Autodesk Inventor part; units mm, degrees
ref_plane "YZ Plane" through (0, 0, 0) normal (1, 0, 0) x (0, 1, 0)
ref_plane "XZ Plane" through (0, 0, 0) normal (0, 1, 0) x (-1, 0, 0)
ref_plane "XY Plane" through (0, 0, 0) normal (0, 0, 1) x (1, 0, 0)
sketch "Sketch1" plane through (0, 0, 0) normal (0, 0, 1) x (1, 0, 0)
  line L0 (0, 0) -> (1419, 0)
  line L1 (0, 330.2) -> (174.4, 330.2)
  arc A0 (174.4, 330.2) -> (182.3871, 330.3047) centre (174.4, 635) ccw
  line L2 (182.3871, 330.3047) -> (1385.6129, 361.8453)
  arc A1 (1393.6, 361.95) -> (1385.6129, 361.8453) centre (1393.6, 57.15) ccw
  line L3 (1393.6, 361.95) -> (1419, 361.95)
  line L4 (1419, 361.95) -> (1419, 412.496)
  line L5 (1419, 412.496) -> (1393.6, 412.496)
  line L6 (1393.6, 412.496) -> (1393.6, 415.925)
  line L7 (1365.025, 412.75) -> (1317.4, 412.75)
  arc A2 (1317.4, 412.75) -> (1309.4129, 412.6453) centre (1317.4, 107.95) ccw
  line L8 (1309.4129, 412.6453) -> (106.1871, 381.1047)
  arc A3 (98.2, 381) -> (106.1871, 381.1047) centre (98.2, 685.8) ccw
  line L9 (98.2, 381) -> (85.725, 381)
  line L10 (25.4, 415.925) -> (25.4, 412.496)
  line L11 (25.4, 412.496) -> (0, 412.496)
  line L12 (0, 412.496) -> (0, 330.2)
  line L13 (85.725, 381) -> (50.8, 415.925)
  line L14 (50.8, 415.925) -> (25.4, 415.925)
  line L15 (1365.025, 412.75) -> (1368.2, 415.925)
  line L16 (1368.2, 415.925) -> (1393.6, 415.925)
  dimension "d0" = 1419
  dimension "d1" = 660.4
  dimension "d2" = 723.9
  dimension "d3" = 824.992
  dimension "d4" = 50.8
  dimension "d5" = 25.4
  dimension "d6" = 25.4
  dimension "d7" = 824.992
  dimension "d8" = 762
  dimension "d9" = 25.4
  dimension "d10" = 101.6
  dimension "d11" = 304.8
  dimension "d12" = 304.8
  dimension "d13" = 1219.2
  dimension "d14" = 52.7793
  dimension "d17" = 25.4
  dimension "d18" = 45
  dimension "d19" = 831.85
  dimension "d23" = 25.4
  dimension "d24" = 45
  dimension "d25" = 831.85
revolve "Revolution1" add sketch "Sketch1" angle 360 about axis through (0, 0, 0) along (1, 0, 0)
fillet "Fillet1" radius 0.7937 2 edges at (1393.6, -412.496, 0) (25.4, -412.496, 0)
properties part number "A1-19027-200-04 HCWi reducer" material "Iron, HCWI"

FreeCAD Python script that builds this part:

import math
import FreeCAD as App
import Part
import Sketcher

V = App.Vector
Q = App.Units.Quantity


def edges_at(feature, points):
    """Names of the edges that pass closest to the given points."""
    edges = feature.Shape.Edges
    near = lambda p: min(range(len(edges)), key=lambda i: edges[i].distToShape(Part.Vertex(*p))[0])
    return sorted({f"Edge{near(p) + 1}" for p in points})

doc = App.newDocument("Part")
params = doc.addObject("Spreadsheet::Sheet", "Params")
for row, (alias, value) in enumerate([
    ("sketch1_width", "1 in"),
    ("sketch1_width2", "1 in"),
    ("sketch1_width3", "1 in"),
    ("sketch1_width4", "1 in"),
    ("sketch1_width5", "1 in"),
    ("revolution_angle", "360 deg"),
    ("fillet_radius", "0.031248 in"),
], start=1):
    params.set(f"A{row}", alias)
    params.set(f"B{row}", "=" + value)
    params.setAlias(f"B{row}", alias)

body = doc.addObject("PartDesign::Body", "Body")

# Sketch on XY plane
sketch1 = doc.addObject("Sketcher::SketchObject", "Sketch")
body.addObject(sketch1)
sketch1.AttachmentSupport = (doc.XY_Plane, [""])
sketch1.MapMode = "FlatFace"
sketch1.addGeometry([
    Part.LineSegment(V(0, 412.496, 0), V(0, 330.2, 0)),  # 0
    Part.LineSegment(V(0, 330.2, 0), V(174.4, 330.2, 0)),  # 1
    Part.ArcOfCircle(Part.Circle(V(174.401276, 634.805309, 0), V(0, 0, 1), 304.605309), math.radians(-90.00024), math.radians(-88.497707)),  # 2
    Part.LineSegment(V(182.3871, 330.3047, 0), V(1385.6129, 361.8453, 0)),  # 3
    Part.ArcOfCircle(Part.Circle(V(1393.598724, 57.344691, 0), V(0, 0, 1), 304.605309), math.radians(89.99976), math.radians(91.502293)),  # 4
    Part.LineSegment(V(1393.6, 361.95, 0), V(1419, 361.95, 0)),  # 5
    Part.LineSegment(V(1419, 361.95, 0), V(1419, 412.496, 0)),  # 6
    Part.LineSegment(V(1419, 412.496, 0), V(1393.6, 412.496, 0)),  # 7
    Part.LineSegment(V(1393.6, 412.496, 0), V(1393.6, 415.925, 0)),  # 8
    Part.LineSegment(V(1393.6, 415.925, 0), V(1368.2, 415.925, 0)),  # 9
    Part.LineSegment(V(1368.2, 415.925, 0), V(1365.025, 412.75, 0)),  # 10
    Part.LineSegment(V(1365.025, 412.75, 0), V(1317.4, 412.75, 0)),  # 11
    Part.ArcOfCircle(Part.Circle(V(1317.398724, 108.144691, 0), V(0, 0, 1), 304.605309), math.radians(89.99976), math.radians(91.502293)),  # 12
    Part.LineSegment(V(1309.4129, 412.6453, 0), V(106.1871, 381.1047, 0)),  # 13
    Part.ArcOfCircle(Part.Circle(V(98.201276, 685.605309, 0), V(0, 0, 1), 304.605309), math.radians(-90.00024), math.radians(-88.497707)),  # 14
    Part.LineSegment(V(98.2, 381, 0), V(85.725, 381, 0)),  # 15
    Part.LineSegment(V(85.725, 381, 0), V(50.8, 415.925, 0)),  # 16
    Part.LineSegment(V(50.8, 415.925, 0), V(25.4, 415.925, 0)),  # 17
    Part.LineSegment(V(25.4, 415.925, 0), V(25.4, 412.496, 0)),  # 18
    Part.LineSegment(V(25.4, 412.496, 0), V(0, 412.496, 0)),  # 19
], False)
sketch1.addConstraint([
    Sketcher.Constraint("Coincident", 0, 2, 1, 1),
    Sketcher.Constraint("Coincident", 1, 2, 2, 1),
    Sketcher.Constraint("Coincident", 2, 2, 3, 1),
    Sketcher.Constraint("Coincident", 3, 2, 4, 2),
    Sketcher.Constraint("Coincident", 4, 1, 5, 1),
    Sketcher.Constraint("Coincident", 5, 2, 6, 1),
    Sketcher.Constraint("Coincident", 6, 2, 7, 1),
    Sketcher.Constraint("Coincident", 7, 2, 8, 1),
    Sketcher.Constraint("Coincident", 8, 2, 9, 1),
    Sketcher.Constraint("Coincident", 9, 2, 10, 1),
    Sketcher.Constraint("Coincident", 10, 2, 11, 1),
    Sketcher.Constraint("Coincident", 11, 2, 12, 1),
    Sketcher.Constraint("Coincident", 12, 2, 13, 1),
    Sketcher.Constraint("Coincident", 13, 2, 14, 2),
    Sketcher.Constraint("Coincident", 14, 1, 15, 1),
    Sketcher.Constraint("Coincident", 15, 2, 16, 1),
    Sketcher.Constraint("Coincident", 16, 2, 17, 1),
    Sketcher.Constraint("Coincident", 17, 2, 18, 1),
    Sketcher.Constraint("Coincident", 18, 2, 19, 1),
    Sketcher.Constraint("Coincident", 19, 2, 0, 1),
    Sketcher.Constraint("Vertical", 0),
    Sketcher.Constraint("Horizontal", 1),
    Sketcher.Constraint("Horizontal", 5),
    Sketcher.Constraint("Vertical", 6),
    Sketcher.Constraint("Horizontal", 7),
    Sketcher.Constraint("Vertical", 8),
    Sketcher.Constraint("Horizontal", 9),
    Sketcher.Constraint("Horizontal", 11),
    Sketcher.Constraint("Horizontal", 15),
    Sketcher.Constraint("Horizontal", 17),
    Sketcher.Constraint("Vertical", 18),
    Sketcher.Constraint("Horizontal", 19),
    Sketcher.Constraint("PointOnObject", 0, 2, -2),
    Sketcher.Constraint("DistanceX", 5, 1, 5, 2, Q("1 in")),
    Sketcher.Constraint("DistanceX", 7, 2, 7, 1, Q("1 in")),
    Sketcher.Constraint("DistanceX", 9, 2, 9, 1, Q("1 in")),
    Sketcher.Constraint("DistanceX", 17, 2, 17, 1, Q("1 in")),
    Sketcher.Constraint("DistanceX", 19, 2, 19, 1, Q("1 in")),
    Sketcher.Constraint("DistanceY", 4, 3, 12, 3, Q("2 in")),
    Sketcher.Constraint("DistanceY", 2, 3, 14, 3, Q("2 in")),
    Sketcher.Constraint("DistanceX", 1, 2, 4, 1, Q("48 in")),
    Sketcher.Constraint("DistanceX", 11, 2, 9, 2, Q("2 in")),
    Sketcher.Constraint("DistanceY", 2, 2, 13, 2, Q("2 in")),
    Sketcher.Constraint("DistanceY", 1, 2, 14, 1, Q("2 in")),
    Sketcher.Constraint("DistanceY", -1, 1, 0, 2, Q("13 in")),
    Sketcher.Constraint("DistanceX", 12, 3, 4, 3, Q("3 in")),
    Sketcher.Constraint("DistanceX", 14, 3, 2, 3, Q("3 in")),
    Sketcher.Constraint("DistanceX", 14, 1, 1, 2, Q("3 in")),
    Sketcher.Constraint("DistanceY", 0, 2, 0, 1, Q("3.24 in")),
    Sketcher.Constraint("DistanceY", 6, 1, 6, 2, Q("1.99 in")),
    Sketcher.Constraint("DistanceX", 11, 2, 11, 1, Q("1.875 in")),
    Sketcher.Constraint("DistanceY", 8, 1, 8, 2, Q("0.135 in")),
    Sketcher.Constraint("DistanceY", 18, 2, 18, 1, Q("0.135 in")),
    Sketcher.Constraint("DistanceX", -1, 1, 5, 2, Q("1419 mm")),
    Sketcher.Constraint("DistanceY", -1, 1, 4, 1, Q("14.25 in")),
    Sketcher.Constraint("DistanceY", -1, 1, 10, 2, Q("16.25 in")),
    Sketcher.Constraint("Radius", 2, Q("304.6053 mm")),
    Sketcher.Constraint("Radius", 4, Q("304.6053 mm")),
    Sketcher.Constraint("DistanceX", -1, 1, 15, 2, Q("3.375 in")),
    Sketcher.Constraint("DistanceX", -1, 1, 2, 3, Q("6.8662 in")),
    Sketcher.Constraint("DistanceX", -1, 1, 4, 3, Q("54.8661 in")),
    Sketcher.Constraint("DistanceX", -1, 1, 2, 2, Q("7.1806 in")),
    Sketcher.Constraint("DistanceX", -1, 1, 3, 2, Q("54.5517 in")),
    Sketcher.Constraint("DistanceX", -1, 1, 12, 2, Q("51.5517 in")),
])
sketch1.setExpression("Constraints[33]", "Params.sketch1_width")
sketch1.setExpression("Constraints[34]", "Params.sketch1_width2")
sketch1.setExpression("Constraints[35]", "Params.sketch1_width3")
sketch1.setExpression("Constraints[36]", "Params.sketch1_width4")
sketch1.setExpression("Constraints[37]", "Params.sketch1_width5")
revolution = doc.addObject("PartDesign::Revolution", "Revolution")
body.addObject(revolution)
revolution.Profile = sketch1
revolution.ReferenceAxis = (sketch1, ["H_Axis"])
revolution.setExpression("Angle", "Params.revolution_angle")
doc.recompute()

fillet = doc.addObject("PartDesign::Fillet", "Fillet")
body.addObject(fillet)
fillet.Base = (revolution, edges_at(revolution, [(1393.6, -412.496, 0), (25.4, -412.496, 0)]))
fillet.setExpression("Radius", "Params.fillet_radius")

doc.recompute()
